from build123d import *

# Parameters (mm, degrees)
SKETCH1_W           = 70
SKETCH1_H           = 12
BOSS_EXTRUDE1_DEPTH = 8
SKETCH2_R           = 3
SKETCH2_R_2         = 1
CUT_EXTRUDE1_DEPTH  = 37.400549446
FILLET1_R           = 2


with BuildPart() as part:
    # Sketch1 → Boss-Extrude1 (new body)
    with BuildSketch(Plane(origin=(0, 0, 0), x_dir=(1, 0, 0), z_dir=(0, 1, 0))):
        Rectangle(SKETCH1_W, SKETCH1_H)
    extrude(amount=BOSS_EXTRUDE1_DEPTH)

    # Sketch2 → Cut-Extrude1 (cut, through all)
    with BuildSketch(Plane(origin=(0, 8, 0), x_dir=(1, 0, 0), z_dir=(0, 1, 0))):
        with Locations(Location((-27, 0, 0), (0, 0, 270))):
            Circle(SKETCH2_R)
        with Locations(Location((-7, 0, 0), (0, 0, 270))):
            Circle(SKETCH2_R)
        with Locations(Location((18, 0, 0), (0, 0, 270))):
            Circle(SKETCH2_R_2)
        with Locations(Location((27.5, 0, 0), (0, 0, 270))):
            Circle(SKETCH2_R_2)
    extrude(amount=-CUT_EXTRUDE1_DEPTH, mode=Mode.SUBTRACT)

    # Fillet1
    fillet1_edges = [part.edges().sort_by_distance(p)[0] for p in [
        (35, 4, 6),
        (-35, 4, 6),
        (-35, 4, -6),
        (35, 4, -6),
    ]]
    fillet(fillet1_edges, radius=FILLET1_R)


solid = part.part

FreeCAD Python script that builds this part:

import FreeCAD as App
import Part
import Sketcher
from FreeCAD import Vector


def edges_at(feature, points):
    """Names of the edges that pass closest to the given points."""
    edges = feature.Shape.Edges
    near = lambda p: min(range(len(edges)), key=lambda i: edges[i].distToShape(Part.Vertex(*p))[0])
    return sorted({f"Edge{near(p) + 1}" for p in points})


def add_polygon(sketch, points):
    """Adds a closed chain of lines whose ends are joined by coincident constraints."""
    first, n = sketch.GeometryCount, len(points)
    for a, b in zip(points, points[1:] + points[:1]):
        sketch.addGeometry(Part.LineSegment(App.Vector(*a, 0), App.Vector(*b, 0)), False)
    for i in range(n):
        sketch.addConstraint(Sketcher.Constraint("Coincident", first + i, 2, first + (i + 1) % n, 1))

doc = App.newDocument("Part")
body = doc.addObject("PartDesign::Body", "Body")

sketch1 = body.newObject("Sketcher::SketchObject", "Sketch")
sketch1.AttachmentSupport = (doc.getObject("XZ_Plane"), [""])
sketch1.MapMode = "FlatFace"
add_polygon(sketch1, [(-35, -6), (-35, 6), (35, 6), (35, -6)])
sketch1.addConstraint([
    Sketcher.Constraint("Vertical", 0),
    Sketcher.Constraint("Horizontal", 1),
    Sketcher.Constraint("Vertical", 2),
    Sketcher.Constraint("Horizontal", 3),
    Sketcher.Constraint("Symmetric", 0, 2, 2, 2, -1, 1),
    Sketcher.Constraint("DistanceX", 1, 1, 1, 2, 70.0),
    Sketcher.Constraint("DistanceY", 0, 1, 0, 2, 12.0),
])
pad1 = body.newObject("PartDesign::Pad", "Pad")
pad1.Profile = sketch1
pad1.Length = 8
pad1.Reversed = True

sketch2 = body.newObject("Sketcher::SketchObject", "Sketch001")
sketch2.AttachmentSupport = (doc.getObject("XZ_Plane"), [""])
sketch2.MapMode = "FlatFace"
sketch2.AttachmentOffset = App.Placement(Vector(0, 0, -8), App.Rotation())
sketch2.addGeometry([
    Part.Circle(Vector(-27, 0, 0), Vector(0, 0, 1), 3),
    Part.Circle(Vector(-7, 0, 0), Vector(0, 0, 1), 3),
    Part.Circle(Vector(18, 0, 0), Vector(0, 0, 1), 1),
    Part.Circle(Vector(27.5, 0, 0), Vector(0, 0, 1), 1),
], False)
sketch2.addConstraint([
    Sketcher.Constraint("Equal", 0, 1),
    Sketcher.Constraint("Equal", 2, 3),
    Sketcher.Constraint("PointOnObject", 0, 3, -1),
    Sketcher.Constraint("PointOnObject", 1, 3, -1),
    Sketcher.Constraint("PointOnObject", 2, 3, -1),
    Sketcher.Constraint("PointOnObject", 3, 3, -1),
    Sketcher.Constraint("Diameter", 0, 6.0),
    Sketcher.Constraint("Diameter", 2, 2.0),
    Sketcher.Constraint("DistanceX", 0, 3, -1, 1, 27.0),
    Sketcher.Constraint("DistanceX", 1, 3, -1, 1, 7.0),
    Sketcher.Constraint("DistanceX", -1, 1, 2, 3, 18.0),
    Sketcher.Constraint("DistanceX", -1, 1, 3, 3, 27.5),
])
pocket1 = body.newObject("PartDesign::Pocket", "Pocket")
pocket1.Profile = sketch2
pocket1.Type = "ThroughAll"
pocket1.Reversed = True
doc.recompute()

fillet = body.newObject("PartDesign::Fillet", "Fillet")
fillet.Base = (pocket1, edges_at(pocket1, [
    (35, 4, 6),
    (-35, 4, 6),
    (-35, 4, -6),
    (35, 4, -6),
]))
fillet.Radius = 2

doc.recompute()
